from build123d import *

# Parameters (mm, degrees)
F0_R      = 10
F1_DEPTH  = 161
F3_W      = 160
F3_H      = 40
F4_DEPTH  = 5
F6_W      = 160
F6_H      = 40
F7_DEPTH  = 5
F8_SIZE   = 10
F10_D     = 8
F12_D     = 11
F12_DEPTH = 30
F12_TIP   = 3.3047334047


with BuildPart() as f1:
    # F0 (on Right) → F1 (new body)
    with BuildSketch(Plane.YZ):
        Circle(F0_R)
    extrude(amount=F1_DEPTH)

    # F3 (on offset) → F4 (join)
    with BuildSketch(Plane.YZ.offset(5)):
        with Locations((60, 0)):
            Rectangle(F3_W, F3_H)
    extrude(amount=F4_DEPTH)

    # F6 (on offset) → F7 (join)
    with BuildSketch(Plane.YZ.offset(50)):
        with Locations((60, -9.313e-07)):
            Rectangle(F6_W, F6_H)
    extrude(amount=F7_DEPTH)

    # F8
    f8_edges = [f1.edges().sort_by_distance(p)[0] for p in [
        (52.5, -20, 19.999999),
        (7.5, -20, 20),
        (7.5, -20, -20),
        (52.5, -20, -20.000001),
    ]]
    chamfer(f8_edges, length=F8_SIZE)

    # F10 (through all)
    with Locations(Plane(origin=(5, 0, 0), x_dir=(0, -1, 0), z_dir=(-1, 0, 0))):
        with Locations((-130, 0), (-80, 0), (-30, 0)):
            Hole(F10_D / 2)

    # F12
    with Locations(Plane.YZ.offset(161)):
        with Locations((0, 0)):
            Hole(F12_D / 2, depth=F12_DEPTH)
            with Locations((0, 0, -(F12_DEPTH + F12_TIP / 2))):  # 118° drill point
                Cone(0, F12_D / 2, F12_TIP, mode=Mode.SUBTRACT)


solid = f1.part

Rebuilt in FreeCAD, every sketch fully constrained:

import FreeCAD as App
import Part
import Sketcher
from FreeCAD import Vector


def edges_at(feature, points):
    """Names of the edges that pass closest to the given points."""
    edges = feature.Shape.Edges
    near = lambda p: min(range(len(edges)), key=lambda i: edges[i].distToShape(Part.Vertex(*p))[0])
    return sorted({f"Edge{near(p) + 1}" for p in points})


def add_polygon(sketch, points):
    """Adds a closed chain of lines whose ends are joined by coincident constraints."""
    first, n = sketch.GeometryCount, len(points)
    for a, b in zip(points, points[1:] + points[:1]):
        sketch.addGeometry(Part.LineSegment(App.Vector(*a, 0), App.Vector(*b, 0)), False)
    for i in range(n):
        sketch.addConstraint(Sketcher.Constraint("Coincident", first + i, 2, first + (i + 1) % n, 1))

doc = App.newDocument("Part")
params = doc.addObject("Spreadsheet::Sheet", "Params")
for row, (alias, value) in enumerate([
    ("sketch1_diameter", "20 mm"),
    ("pad1_length", "161 mm"),
    ("sketch2_width", "160 mm"),
    ("sketch2_height", "40 mm"),
    ("pad2_length", "5 mm"),
    ("sketch3_width", "160 mm"),
    ("sketch3_height", "40 mm"),
    ("pad3_length", "5 mm"),
    ("chamfer_size", "10 mm"),
    ("sketch4_diameter", "8 mm"),
    ("hole_diameter", "8 mm"),
    ("sketch5_diameter", "11 mm"),
    ("hole2_diameter", "11 mm"),
    ("hole2_depth", "30 mm"),
], start=1):
    params.set(f"A{row}", alias)
    params.set(f"B{row}", "=" + value)
    params.setAlias(f"B{row}", alias)

body = doc.addObject("PartDesign::Body", "Body")

sketch1 = doc.addObject("Sketcher::SketchObject", "Sketch")
body.addObject(sketch1)
sketch1.AttachmentSupport = (doc.YZ_Plane, [""])
sketch1.MapMode = "FlatFace"
sketch1.addGeometry(Part.Circle(Vector(0, 0, 0), Vector(0, 0, 1), 10), False)
sketch1.addConstraint(Sketcher.Constraint("Coincident", 0, 3, -1, 1))
sketch1.addConstraint(Sketcher.Constraint("Diameter", 0, 20.0))
sketch1.setExpression("Constraints[1]", "Params.sketch1_diameter")
pad1 = doc.addObject("PartDesign::Pad", "Pad")
body.addObject(pad1)
pad1.Profile = sketch1
pad1.setExpression("Length", "Params.pad1_length")

sketch2 = doc.addObject("Sketcher::SketchObject", "Sketch001")
body.addObject(sketch2)
sketch2.AttachmentSupport = (doc.YZ_Plane, [""])
sketch2.MapMode = "FlatFace"
sketch2.AttachmentOffset = App.Placement(Vector(0, 0, 5), App.Rotation())
add_polygon(sketch2, [(-20, 20), (-20, -20), (140, -20), (140, 20)])
sketch2.addConstraint(Sketcher.Constraint("Vertical", 0))
sketch2.addConstraint(Sketcher.Constraint("Horizontal", 1))
sketch2.addConstraint(Sketcher.Constraint("Vertical", 2))
sketch2.addConstraint(Sketcher.Constraint("Horizontal", 3))
sketch2.addConstraint(Sketcher.Constraint("DistanceX", 1, 1, 1, 2, 160.0))
sketch2.addConstraint(Sketcher.Constraint("DistanceY", 0, 2, 0, 1, 40.0))
sketch2.addConstraint(Sketcher.Constraint("DistanceX", 0, 2, -1, 1, 20.0))
sketch2.addConstraint(Sketcher.Constraint("DistanceY", 0, 2, -1, 1, 20.0))
sketch2.setExpression("Constraints[8]", "Params.sketch2_width")
sketch2.setExpression("Constraints[9]", "Params.sketch2_height")
pad2 = doc.addObject("PartDesign::Pad", "Pad001")
body.addObject(pad2)
pad2.Profile = sketch2
pad2.setExpression("Length", "Params.pad2_length")

sketch3 = doc.addObject("Sketcher::SketchObject", "Sketch002")
body.addObject(sketch3)
sketch3.AttachmentSupport = (doc.YZ_Plane, [""])
sketch3.MapMode = "FlatFace"
sketch3.AttachmentOffset = App.Placement(Vector(0, 0, 50), App.Rotation())
add_polygon(sketch3, [(-20, 20), (-20, -20), (140, -20), (140, 20)])
sketch3.addConstraint(Sketcher.Constraint("Vertical", 0))
sketch3.addConstraint(Sketcher.Constraint("Horizontal", 1))
sketch3.addConstraint(Sketcher.Constraint("Vertical", 2))
sketch3.addConstraint(Sketcher.Constraint("Horizontal", 3))
sketch3.addConstraint(Sketcher.Constraint("DistanceX", 1, 1, 1, 2, 160.0))
sketch3.addConstraint(Sketcher.Constraint("DistanceY", 0, 2, 0, 1, 40.0))
sketch3.addConstraint(Sketcher.Constraint("DistanceX", 0, 2, -1, 1, 20.0))
sketch3.addConstraint(Sketcher.Constraint("DistanceY", 0, 2, -1, 1, 20.000001))
sketch3.setExpression("Constraints[8]", "Params.sketch3_width")
sketch3.setExpression("Constraints[9]", "Params.sketch3_height")
pad3 = doc.addObject("PartDesign::Pad", "Pad002")
body.addObject(pad3)
pad3.Profile = sketch3
pad3.setExpression("Length", "Params.pad3_length")
doc.recompute()

chamfer = doc.addObject("PartDesign::Chamfer", "Chamfer")
body.addObject(chamfer)
chamfer.Base = (pad3, edges_at(pad3, [
    (52.5, -20, 20),
    (7.5, -20, 20),
    (7.5, -20, -20),
    (52.5, -20, -20),
]))
chamfer.setExpression("Size", "Params.chamfer_size")

sketch4 = doc.addObject("Sketcher::SketchObject", "Sketch003")
body.addObject(sketch4)
sketch4.AttachmentSupport = (doc.YZ_Plane, [""])
sketch4.MapMode = "FlatFace"
sketch4.AttachmentOffset = App.Placement(Vector(0, 0, 5), App.Rotation())
sketch4.addGeometry(Part.Circle(Vector(130, 0, 0), Vector(0, 0, 1), 4), False)
sketch4.addGeometry(Part.Circle(Vector(80, 0, 0), Vector(0, 0, 1), 4), False)
sketch4.addGeometry(Part.Circle(Vector(30, 0, 0), Vector(0, 0, 1), 4), False)
sketch4.addConstraint(Sketcher.Constraint("Equal", 0, 1))
sketch4.addConstraint(Sketcher.Constraint("Equal", 1, 2))
sketch4.addConstraint(Sketcher.Constraint("PointOnObject", 0, 3, -1))
sketch4.addConstraint(Sketcher.Constraint("PointOnObject", 1, 3, -1))
sketch4.addConstraint(Sketcher.Constraint("PointOnObject", 2, 3, -1))
sketch4.addConstraint(Sketcher.Constraint("Diameter", 0, 8.0))
sketch4.addConstraint(Sketcher.Constraint("DistanceX", -1, 1, 0, 3, 130.0))
sketch4.addConstraint(Sketcher.Constraint("DistanceX", -1, 1, 1, 3, 80.0))
sketch4.addConstraint(Sketcher.Constraint("DistanceX", -1, 1, 2, 3, 30.0))
sketch4.setExpression("Constraints[5]", "Params.sketch4_diameter")
doc.recompute()
hole = doc.addObject("PartDesign::Hole", "Hole")
body.addObject(hole)
hole.Profile = sketch4
hole.ThreadType = "None"
hole.setExpression("Diameter", "Params.hole_diameter")
hole.DepthType = "ThroughAll"
hole.Reversed = True

sketch5 = doc.addObject("Sketcher::SketchObject", "Sketch004")
body.addObject(sketch5)
sketch5.AttachmentSupport = (doc.YZ_Plane, [""])
sketch5.MapMode = "FlatFace"
sketch5.AttachmentOffset = App.Placement(Vector(0, 0, 161), App.Rotation())
sketch5.addGeometry(Part.Circle(Vector(0, 0, 0), Vector(0, 0, 1), 6), False)
sketch5.addConstraint(Sketcher.Constraint("Coincident", 0, 3, -1, 1))
sketch5.addConstraint(Sketcher.Constraint("Diameter", 0, 11.0))
sketch5.setExpression("Constraints[1]", "Params.sketch5_diameter")
doc.recompute()
hole2 = doc.addObject("PartDesign::Hole", "Hole001")
body.addObject(hole2)
hole2.Profile = sketch5
hole2.ThreadType = "None"
hole2.setExpression("Diameter", "Params.hole2_diameter")
hole2.DepthType = "Dimension"
hole2.setExpression("Depth", "Params.hole2_depth")
hole2.DrillPoint = "Angled"
hole2.DrillPointAngle = 118

doc.recompute()
